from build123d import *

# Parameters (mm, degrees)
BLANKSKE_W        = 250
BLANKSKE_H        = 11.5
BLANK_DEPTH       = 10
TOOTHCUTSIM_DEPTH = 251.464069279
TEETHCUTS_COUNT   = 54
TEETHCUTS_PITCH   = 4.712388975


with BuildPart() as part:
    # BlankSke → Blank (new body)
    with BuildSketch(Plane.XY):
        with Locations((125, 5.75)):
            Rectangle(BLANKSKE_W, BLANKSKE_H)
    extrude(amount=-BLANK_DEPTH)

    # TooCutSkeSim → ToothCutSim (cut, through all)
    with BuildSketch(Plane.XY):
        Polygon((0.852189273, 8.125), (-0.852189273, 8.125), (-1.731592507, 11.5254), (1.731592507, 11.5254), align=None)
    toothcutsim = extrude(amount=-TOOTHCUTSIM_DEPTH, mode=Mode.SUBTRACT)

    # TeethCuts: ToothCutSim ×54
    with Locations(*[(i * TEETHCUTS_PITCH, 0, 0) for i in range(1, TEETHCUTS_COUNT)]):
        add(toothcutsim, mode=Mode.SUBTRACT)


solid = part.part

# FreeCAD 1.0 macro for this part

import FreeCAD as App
import Part
import Sketcher
from FreeCAD import Vector
Q = App.Units.Quantity

doc = App.newDocument("Part")
body = doc.addObject("PartDesign::Body", "Body")

sketch1 = body.newObject("Sketcher::SketchObject", "Sketch")
sketch1.AttachmentSupport = (doc.getObject("XY_Plane"), [""])
sketch1.MapMode = "FlatFace"
sketch1.addGeometry([
    Part.LineSegment(Vector(0, 12, 0), Vector(0, 0, 0)),
    Part.LineSegment(Vector(0, 0, 0), Vector(250, 0, 0)),
    Part.LineSegment(Vector(250, 0, 0), Vector(250, 12, 0)),
    Part.LineSegment(Vector(250, 12, 0), Vector(0, 12, 0)),
], False)
sketch1.addConstraint([
    Sketcher.Constraint("Coincident", 0, 2, 1, 1),
    Sketcher.Constraint("Coincident", 1, 2, 2, 1),
    Sketcher.Constraint("Coincident", 2, 2, 3, 1),
    Sketcher.Constraint("Coincident", 3, 2, 0, 1),
    Sketcher.Constraint("Vertical", 0),
    Sketcher.Constraint("Horizontal", 1),
    Sketcher.Constraint("Vertical", 2),
    Sketcher.Constraint("Horizontal", 3),
    Sketcher.Constraint("Coincident", 0, 2, -1, 1),
    Sketcher.Constraint("DistanceX", 1, 1, 1, 2, 250.0),
    Sketcher.Constraint("DistanceY", 0, 2, 0, 1, 11.5),
])
pad1 = body.newObject("PartDesign::Pad", "Pad")
pad1.Profile = sketch1
pad1.Length = 10
pad1.Reversed = True

sketch2 = body.newObject("Sketcher::SketchObject", "Sketch001")
sketch2.AttachmentSupport = (doc.getObject("XY_Plane"), [""])
sketch2.MapMode = "FlatFace"
sketch2.addGeometry([
    Part.LineSegment(Vector(-0.9, 8.1, 0), Vector(0.9, 8.1, 0)),
    Part.LineSegment(Vector(0.9, 8.1, 0), Vector(1.7, 11.5, 0)),
    Part.LineSegment(Vector(1.7, 11.5, 0), Vector(-1.7, 11.5, 0)),
    Part.LineSegment(Vector(-1.7, 11.5, 0), Vector(-0.9, 8.1, 0)),
], False)
sketch2.addConstraint([
    Sketcher.Constraint("Coincident", 0, 2, 1, 1),
    Sketcher.Constraint("Coincident", 1, 2, 2, 1),
    Sketcher.Constraint("Coincident", 2, 2, 3, 1),
    Sketcher.Constraint("Coincident", 3, 2, 0, 1),
    Sketcher.Constraint("Horizontal", 0),
    Sketcher.Constraint("Horizontal", 2),
    Sketcher.Constraint("Equal", 1, 3),
    Sketcher.Constraint("Angle", 1, Q("75.5 deg")),
    Sketcher.Constraint("DistanceY", -1, 1, 0, 2, 8.125),
    Sketcher.Constraint("DistanceX", 0, 1, 0, 2, 1.704379),
    Sketcher.Constraint("DistanceY", -1, 1, 1, 2, 11.5254),
    Sketcher.Constraint("DistanceX", -1, 1, 0, 2, 0.852189),
])
pocket1 = body.newObject("PartDesign::Pocket", "Pocket")
pocket1.Profile = sketch2
pocket1.Type = "ThroughAll"
doc.recompute()

linearpattern = body.newObject("PartDesign::LinearPattern", "LinearPattern")
linearpattern.Originals = [pocket1]
linearpattern.Direction = (doc.getObject("X_Axis"), [""])
linearpattern.Mode = "offset"
linearpattern.Offset = 4.712389
linearpattern.Occurrences = 54
body.Tip = linearpattern

doc.recompute()
